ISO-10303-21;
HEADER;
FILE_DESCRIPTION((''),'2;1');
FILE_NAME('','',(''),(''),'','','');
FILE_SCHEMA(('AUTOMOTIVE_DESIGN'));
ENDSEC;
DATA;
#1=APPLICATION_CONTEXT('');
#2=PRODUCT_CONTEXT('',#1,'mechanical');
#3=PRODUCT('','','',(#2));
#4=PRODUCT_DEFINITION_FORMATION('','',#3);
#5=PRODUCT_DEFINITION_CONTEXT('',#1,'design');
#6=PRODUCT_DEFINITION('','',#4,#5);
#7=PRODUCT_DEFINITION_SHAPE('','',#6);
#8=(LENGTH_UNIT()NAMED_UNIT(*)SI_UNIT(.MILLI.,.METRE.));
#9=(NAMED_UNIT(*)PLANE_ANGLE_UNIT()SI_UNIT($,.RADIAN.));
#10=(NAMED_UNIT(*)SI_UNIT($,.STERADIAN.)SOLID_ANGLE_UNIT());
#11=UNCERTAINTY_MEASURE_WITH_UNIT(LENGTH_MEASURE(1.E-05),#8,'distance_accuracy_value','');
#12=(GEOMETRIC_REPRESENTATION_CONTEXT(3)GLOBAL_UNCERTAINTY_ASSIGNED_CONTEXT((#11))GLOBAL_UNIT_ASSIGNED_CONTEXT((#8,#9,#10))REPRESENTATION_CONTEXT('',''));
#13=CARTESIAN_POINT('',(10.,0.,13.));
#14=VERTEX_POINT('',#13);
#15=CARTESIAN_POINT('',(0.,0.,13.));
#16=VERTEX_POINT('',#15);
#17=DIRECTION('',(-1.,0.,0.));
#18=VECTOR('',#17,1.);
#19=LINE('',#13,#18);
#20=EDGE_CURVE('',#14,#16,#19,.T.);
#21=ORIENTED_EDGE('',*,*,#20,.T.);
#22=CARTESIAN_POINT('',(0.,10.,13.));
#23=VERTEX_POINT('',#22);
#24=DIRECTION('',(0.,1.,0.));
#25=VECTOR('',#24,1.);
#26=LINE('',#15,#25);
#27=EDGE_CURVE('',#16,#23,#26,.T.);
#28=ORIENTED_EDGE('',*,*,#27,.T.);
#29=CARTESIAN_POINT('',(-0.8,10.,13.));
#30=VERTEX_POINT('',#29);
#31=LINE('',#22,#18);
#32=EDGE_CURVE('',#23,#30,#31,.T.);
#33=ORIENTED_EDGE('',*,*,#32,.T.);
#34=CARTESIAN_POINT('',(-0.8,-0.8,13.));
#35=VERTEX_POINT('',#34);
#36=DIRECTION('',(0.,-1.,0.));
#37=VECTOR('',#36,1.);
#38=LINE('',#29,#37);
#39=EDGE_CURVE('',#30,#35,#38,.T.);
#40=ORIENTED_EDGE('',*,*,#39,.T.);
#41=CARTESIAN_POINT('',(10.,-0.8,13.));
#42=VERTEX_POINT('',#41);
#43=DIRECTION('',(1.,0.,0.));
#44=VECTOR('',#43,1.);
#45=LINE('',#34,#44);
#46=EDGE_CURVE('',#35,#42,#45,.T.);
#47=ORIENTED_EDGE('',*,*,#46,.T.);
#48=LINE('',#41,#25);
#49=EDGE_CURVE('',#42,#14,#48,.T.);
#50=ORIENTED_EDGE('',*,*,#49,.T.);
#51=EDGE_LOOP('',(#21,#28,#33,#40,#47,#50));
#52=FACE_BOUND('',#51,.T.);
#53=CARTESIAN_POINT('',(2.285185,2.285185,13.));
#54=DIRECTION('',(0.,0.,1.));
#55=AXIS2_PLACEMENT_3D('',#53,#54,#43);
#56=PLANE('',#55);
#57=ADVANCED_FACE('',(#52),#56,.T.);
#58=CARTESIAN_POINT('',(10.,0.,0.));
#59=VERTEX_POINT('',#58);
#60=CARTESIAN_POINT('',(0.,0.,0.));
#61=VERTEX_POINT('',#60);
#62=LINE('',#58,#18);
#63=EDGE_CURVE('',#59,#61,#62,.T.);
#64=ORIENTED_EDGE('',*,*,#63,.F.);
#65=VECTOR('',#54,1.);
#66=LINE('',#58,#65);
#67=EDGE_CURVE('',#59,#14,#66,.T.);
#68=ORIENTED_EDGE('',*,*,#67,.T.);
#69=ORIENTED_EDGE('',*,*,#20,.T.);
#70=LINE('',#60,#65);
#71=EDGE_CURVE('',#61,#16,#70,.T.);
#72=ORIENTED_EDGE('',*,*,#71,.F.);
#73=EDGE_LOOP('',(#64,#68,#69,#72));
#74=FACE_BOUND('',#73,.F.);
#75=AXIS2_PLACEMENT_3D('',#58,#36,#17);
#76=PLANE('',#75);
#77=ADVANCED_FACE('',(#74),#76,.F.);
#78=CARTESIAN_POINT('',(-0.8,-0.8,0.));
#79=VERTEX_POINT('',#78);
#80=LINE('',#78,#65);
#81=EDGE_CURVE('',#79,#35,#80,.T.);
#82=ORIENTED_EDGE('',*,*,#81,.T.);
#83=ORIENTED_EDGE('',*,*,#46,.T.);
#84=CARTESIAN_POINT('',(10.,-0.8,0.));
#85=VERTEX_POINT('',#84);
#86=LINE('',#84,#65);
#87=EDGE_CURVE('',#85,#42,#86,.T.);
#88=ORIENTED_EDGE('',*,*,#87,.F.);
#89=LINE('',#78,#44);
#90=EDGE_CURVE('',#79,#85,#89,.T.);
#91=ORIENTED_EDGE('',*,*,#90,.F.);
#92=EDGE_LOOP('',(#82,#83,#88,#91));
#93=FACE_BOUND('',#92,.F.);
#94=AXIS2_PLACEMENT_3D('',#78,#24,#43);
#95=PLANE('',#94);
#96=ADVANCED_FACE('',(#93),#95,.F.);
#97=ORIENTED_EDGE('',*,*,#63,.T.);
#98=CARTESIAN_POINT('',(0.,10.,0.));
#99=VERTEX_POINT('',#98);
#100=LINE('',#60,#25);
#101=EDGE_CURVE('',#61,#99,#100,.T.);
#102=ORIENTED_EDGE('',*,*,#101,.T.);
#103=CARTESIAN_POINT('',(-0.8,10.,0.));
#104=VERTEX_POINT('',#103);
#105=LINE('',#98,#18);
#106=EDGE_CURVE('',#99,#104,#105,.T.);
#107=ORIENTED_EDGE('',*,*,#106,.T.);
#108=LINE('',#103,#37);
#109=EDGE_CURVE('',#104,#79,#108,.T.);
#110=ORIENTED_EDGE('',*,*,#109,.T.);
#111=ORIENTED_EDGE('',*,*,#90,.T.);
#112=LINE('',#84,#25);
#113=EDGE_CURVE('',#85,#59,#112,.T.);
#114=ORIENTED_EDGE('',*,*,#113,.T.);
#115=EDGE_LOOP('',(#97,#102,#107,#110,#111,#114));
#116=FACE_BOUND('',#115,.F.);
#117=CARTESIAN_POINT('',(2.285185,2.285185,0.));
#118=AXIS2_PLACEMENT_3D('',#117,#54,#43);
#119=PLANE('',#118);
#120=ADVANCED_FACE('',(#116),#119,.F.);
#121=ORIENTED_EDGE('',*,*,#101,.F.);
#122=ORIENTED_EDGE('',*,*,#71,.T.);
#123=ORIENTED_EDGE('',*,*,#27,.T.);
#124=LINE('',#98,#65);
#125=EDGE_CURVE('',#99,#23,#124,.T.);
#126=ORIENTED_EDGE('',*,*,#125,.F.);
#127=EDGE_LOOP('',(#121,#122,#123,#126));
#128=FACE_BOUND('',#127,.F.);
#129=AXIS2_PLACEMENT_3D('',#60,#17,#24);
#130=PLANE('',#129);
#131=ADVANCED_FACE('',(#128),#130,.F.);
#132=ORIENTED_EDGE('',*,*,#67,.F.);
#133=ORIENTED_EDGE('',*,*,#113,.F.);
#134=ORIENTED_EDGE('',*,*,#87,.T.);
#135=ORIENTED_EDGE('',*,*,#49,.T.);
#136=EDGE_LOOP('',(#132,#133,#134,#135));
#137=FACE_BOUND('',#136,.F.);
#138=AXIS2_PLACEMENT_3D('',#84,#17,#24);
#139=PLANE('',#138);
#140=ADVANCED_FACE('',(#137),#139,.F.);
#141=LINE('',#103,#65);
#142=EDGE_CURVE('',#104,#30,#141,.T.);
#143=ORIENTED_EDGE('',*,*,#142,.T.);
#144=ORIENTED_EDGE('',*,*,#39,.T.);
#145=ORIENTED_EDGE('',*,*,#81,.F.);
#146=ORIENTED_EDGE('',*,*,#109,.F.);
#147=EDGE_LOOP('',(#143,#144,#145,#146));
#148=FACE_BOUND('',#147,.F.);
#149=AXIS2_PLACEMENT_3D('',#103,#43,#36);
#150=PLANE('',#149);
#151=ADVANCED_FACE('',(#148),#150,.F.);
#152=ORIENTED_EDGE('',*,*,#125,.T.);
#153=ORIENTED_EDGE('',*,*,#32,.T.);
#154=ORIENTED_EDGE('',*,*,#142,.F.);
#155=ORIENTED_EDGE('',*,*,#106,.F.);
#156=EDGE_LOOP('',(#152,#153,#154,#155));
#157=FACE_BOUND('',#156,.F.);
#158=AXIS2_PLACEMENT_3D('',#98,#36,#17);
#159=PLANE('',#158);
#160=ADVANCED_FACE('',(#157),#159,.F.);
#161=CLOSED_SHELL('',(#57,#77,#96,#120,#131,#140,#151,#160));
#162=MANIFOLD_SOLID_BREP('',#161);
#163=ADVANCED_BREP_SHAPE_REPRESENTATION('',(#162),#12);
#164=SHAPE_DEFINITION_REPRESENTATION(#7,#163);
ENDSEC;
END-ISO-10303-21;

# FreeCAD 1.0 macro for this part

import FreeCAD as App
import Part
import Sketcher

V = App.Vector

doc = App.newDocument("Part")
body = doc.addObject("PartDesign::Body", "Body")

# Sketch on XY plane
sketch1 = doc.addObject("Sketcher::SketchObject", "Sketch")
body.addObject(sketch1)
sketch1.AttachmentSupport = (doc.XY_Plane, [""])
sketch1.MapMode = "FlatFace"
sketch1.addGeometry([
    Part.LineSegment(V(0, 0, 0), V(0, 10, 0)),  # 0
    Part.LineSegment(V(0, 10, 0), V(-0.8, 10, 0)),  # 1
    Part.LineSegment(V(-0.8, 10, 0), V(-0.8, -0.8, 0)),  # 2
    Part.LineSegment(V(-0.8, -0.8, 0), V(10, -0.8, 0)),  # 3
    Part.LineSegment(V(10, -0.8, 0), V(10, 0, 0)),  # 4
    Part.LineSegment(V(10, 0, 0), V(0, 0, 0)),  # 5
], False)
sketch1.addConstraint([
    Sketcher.Constraint("Coincident", 0, 2, 1, 1),
    Sketcher.Constraint("Coincident", 1, 2, 2, 1),
    Sketcher.Constraint("Coincident", 2, 2, 3, 1),
    Sketcher.Constraint("Coincident", 3, 2, 4, 1),
    Sketcher.Constraint("Coincident", 4, 2, 5, 1),
    Sketcher.Constraint("Coincident", 5, 2, 0, 1),
    Sketcher.Constraint("Vertical", 0),
    Sketcher.Constraint("Horizontal", 1),
    Sketcher.Constraint("Vertical", 2),
    Sketcher.Constraint("Horizontal", 3),
    Sketcher.Constraint("Vertical", 4),
    Sketcher.Constraint("Horizontal", 5),
    Sketcher.Constraint("Coincident", 5, 2, -1, 1),
    Sketcher.Constraint("Equal", 5, 0),
    Sketcher.Constraint("Equal", 3, 2),
    Sketcher.Constraint("DistanceX", 5, 2, 5, 1, 10.0),
    Sketcher.Constraint("DistanceX", 1, 2, 1, 1, 0.8),
])
pad1 = doc.addObject("PartDesign::Pad", "Pad")
body.addObject(pad1)
pad1.Profile = sketch1
pad1.Length = 13

doc.recompute()
